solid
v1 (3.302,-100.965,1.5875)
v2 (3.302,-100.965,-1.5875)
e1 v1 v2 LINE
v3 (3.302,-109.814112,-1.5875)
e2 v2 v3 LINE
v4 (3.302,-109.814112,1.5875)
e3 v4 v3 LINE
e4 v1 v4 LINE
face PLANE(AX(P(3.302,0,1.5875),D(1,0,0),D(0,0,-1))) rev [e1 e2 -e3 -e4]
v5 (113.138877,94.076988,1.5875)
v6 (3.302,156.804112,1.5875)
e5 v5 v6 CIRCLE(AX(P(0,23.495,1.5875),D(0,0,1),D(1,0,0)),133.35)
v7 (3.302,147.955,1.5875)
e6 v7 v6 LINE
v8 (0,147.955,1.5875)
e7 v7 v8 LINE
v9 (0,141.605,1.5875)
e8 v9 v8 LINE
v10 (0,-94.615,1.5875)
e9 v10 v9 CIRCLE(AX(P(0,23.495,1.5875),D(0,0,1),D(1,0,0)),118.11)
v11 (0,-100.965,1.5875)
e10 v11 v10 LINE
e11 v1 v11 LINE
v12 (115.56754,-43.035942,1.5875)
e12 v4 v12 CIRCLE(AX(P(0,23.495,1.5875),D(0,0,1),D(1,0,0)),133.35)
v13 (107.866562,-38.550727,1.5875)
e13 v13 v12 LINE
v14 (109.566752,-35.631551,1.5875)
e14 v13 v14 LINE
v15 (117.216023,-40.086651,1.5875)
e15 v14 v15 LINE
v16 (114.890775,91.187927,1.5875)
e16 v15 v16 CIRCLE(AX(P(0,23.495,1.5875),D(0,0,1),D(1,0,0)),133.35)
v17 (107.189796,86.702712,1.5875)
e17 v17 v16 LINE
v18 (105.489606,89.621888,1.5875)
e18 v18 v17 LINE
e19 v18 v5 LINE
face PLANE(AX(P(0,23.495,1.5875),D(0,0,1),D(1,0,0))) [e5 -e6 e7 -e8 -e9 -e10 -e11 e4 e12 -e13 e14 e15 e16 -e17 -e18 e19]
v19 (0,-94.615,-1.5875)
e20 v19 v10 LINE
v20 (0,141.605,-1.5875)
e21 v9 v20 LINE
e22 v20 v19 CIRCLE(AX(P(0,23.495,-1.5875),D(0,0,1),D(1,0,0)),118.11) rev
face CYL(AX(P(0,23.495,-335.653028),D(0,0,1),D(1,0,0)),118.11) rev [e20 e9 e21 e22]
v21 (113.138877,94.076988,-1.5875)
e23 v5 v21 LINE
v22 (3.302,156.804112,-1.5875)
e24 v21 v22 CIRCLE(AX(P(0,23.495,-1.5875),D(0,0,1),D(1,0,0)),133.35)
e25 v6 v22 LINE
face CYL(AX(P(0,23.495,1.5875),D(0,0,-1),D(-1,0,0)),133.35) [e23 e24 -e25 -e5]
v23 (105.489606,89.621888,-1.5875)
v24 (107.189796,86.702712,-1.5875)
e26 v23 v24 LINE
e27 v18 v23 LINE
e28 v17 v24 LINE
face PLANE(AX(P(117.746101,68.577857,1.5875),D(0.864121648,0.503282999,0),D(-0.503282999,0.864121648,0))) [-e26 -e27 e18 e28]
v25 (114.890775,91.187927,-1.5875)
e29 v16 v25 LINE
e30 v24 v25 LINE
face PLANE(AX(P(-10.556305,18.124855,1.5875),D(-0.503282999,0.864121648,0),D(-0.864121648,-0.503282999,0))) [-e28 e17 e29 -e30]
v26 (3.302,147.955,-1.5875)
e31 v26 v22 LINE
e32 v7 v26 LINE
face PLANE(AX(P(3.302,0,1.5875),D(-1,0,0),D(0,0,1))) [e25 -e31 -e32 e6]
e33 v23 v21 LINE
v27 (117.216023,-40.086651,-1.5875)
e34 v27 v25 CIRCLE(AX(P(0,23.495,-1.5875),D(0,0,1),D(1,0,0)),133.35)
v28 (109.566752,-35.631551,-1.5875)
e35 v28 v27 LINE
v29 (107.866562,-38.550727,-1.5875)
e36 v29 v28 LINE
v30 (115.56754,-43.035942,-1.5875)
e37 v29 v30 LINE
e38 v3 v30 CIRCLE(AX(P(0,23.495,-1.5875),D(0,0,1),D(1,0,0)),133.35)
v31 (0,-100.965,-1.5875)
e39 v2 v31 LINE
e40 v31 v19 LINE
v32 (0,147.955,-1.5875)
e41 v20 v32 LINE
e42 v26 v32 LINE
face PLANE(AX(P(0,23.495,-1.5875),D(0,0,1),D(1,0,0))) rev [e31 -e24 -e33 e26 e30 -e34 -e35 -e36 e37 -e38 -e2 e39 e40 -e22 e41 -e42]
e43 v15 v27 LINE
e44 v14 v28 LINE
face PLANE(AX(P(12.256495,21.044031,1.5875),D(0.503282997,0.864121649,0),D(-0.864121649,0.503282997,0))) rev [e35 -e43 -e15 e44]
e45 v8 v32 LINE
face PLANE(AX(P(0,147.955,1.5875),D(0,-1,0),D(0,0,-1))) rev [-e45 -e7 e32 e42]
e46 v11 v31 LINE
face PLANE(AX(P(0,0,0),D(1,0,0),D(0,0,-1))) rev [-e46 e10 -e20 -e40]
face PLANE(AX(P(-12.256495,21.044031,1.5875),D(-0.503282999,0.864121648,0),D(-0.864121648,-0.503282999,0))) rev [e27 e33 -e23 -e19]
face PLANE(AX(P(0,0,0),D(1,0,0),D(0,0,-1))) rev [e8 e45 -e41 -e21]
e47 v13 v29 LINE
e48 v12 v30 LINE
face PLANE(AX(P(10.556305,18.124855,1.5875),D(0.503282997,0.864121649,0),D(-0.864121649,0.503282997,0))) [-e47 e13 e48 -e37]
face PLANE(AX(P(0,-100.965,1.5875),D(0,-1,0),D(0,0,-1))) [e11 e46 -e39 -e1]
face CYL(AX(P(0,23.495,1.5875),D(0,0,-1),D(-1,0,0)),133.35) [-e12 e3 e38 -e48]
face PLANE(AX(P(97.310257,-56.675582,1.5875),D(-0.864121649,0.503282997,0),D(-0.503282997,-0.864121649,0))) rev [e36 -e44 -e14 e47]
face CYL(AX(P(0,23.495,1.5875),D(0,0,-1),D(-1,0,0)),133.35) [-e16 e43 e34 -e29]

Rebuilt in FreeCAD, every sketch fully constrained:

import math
import FreeCAD as App
import Part
import Sketcher

V = App.Vector
Q = App.Units.Quantity


def edges_at(feature, points):
    """Names of the edges that pass closest to the given points."""
    edges = feature.Shape.Edges
    near = lambda p: min(range(len(edges)), key=lambda i: edges[i].distToShape(Part.Vertex(*p))[0])
    return sorted({f"Edge{near(p) + 1}" for p in points})


def add_polygon(sketch, points):
    """Adds a closed chain of lines whose ends are joined by coincident constraints."""
    first, n = sketch.GeometryCount, len(points)
    for a, b in zip(points, points[1:] + points[:1]):
        sketch.addGeometry(Part.LineSegment(App.Vector(*a, 0), App.Vector(*b, 0)), False)
    for i in range(n):
        sketch.addConstraint(Sketcher.Constraint("Coincident", first + i, 2, first + (i + 1) % n, 1))

doc = App.newDocument("Part")
body = doc.addObject("PartDesign::Body", "Body")

# Sketch on XY plane
sketch1 = body.newObject("Sketcher::SketchObject", "Sketch")
sketch1.AttachmentSupport = (doc.getObject("XY_Plane"), [""])
sketch1.MapMode = "FlatFace"
sketch1.addGeometry(Part.LineSegment(V(-120, -34, 0), V(-93, -61, 0)), False)
sketch1.addGeometry(Part.LineSegment(V(-93, -61, 0), V(-94, -71, 0)), False)
sketch1.addGeometry(Part.ArcOfCircle(Part.Circle(V(0, 23, 0), V(0, 0, 1), 133), math.radians(-135), math.radians(-115.67)), False)
sketch1.addGeometry(Part.ArcOfCircle(Part.Circle(V(0, 23, 0), V(0, 0, 1), 133), math.radians(-116), math.radians(206)), False)
sketch1.addConstraint(Sketcher.Constraint("Coincident", 0, 2, 1, 1))
sketch1.addConstraint(Sketcher.Constraint("Coincident", 1, 2, 2, 1))
sketch1.addConstraint(Sketcher.Constraint("Tangent", 2, 2, 3, 1))
sketch1.addConstraint(Sketcher.Constraint("Coincident", 3, 2, 0, 1))
sketch1.addConstraint(Sketcher.Constraint("Equal", 2, 3))
sketch1.addConstraint(Sketcher.Constraint("PointOnObject", 2, 3, -2))
sketch1.addConstraint(Sketcher.Constraint("Radius", 2, Q("5.25 in")))
sketch1.addConstraint(Sketcher.Constraint("Angle", 0, Q("-45 deg")))
sketch1.addConstraint(Sketcher.Constraint("Distance", 0, Q("1.5 in")))
sketch1.addConstraint(Sketcher.Constraint("DistanceY", -1, 1, 2, 3, Q("0.925 in")))
sketch1.addConstraint(Sketcher.Constraint("DistanceX", 3, 2, 2, 2, Q("2.4575 in")))
sketch1.addConstraint(Sketcher.Constraint("DistanceY", 2, 2, 3, 2, Q("2.4575 in")))
sketch1.addConstraint(Sketcher.Constraint("DistanceX", 1, 2, -1, 1, 94.292689))
pad1 = body.newObject("PartDesign::Pad", "Pad")
pad1.Profile = sketch1
pad1.Length = Q("0.125 in")
pad1.Midplane = True

# Sketch on XY plane
sketch2 = body.newObject("Sketcher::SketchObject", "Sketch001")
sketch2.AttachmentSupport = (doc.getObject("XY_Plane"), [""])
sketch2.MapMode = "FlatFace"
sketch2.AttachmentOffset = App.Placement(V(0, 0, 0.0625 * 25.4), App.Rotation())
sketch2.addGeometry(Part.LineSegment(V(-77, -56, 0), V(-78, -65, 0)), False)
sketch2.addGeometry(Part.ArcOfCircle(Part.Circle(V(0, 23, 0), V(0, 0, 1), 118), math.radians(-132), math.radians(204)), False)
sketch2.addGeometry(Part.LineSegment(V(-108, -25, 0), V(-77, -56, 0)), False)
sketch2.addConstraint(Sketcher.Constraint("Coincident", 0, 2, 1, 1))
sketch2.addConstraint(Sketcher.Constraint("Coincident", 1, 2, 2, 1))
sketch2.addConstraint(Sketcher.Constraint("Coincident", 2, 2, 0, 1))
sketch2.addConstraint(Sketcher.Constraint("PointOnObject", 1, 3, -2))
sketch2.addConstraint(Sketcher.Constraint("Radius", 1, Q("4.65 in")))
sketch2.addConstraint(Sketcher.Constraint("Angle", 2, Q("-45 deg")))
sketch2.addConstraint(Sketcher.Constraint("DistanceY", -1, 1, 1, 3, Q("0.925 in")))
sketch2.addConstraint(Sketcher.Constraint("DistanceX", 1, 2, -1, 1, 107.5191))
sketch2.addConstraint(Sketcher.Constraint("DistanceX", 2, 2, -1, 1, 77.304798))
sketch2.addConstraint(Sketcher.Constraint("Distance", 0, 9.36481))
pocket1 = body.newObject("PartDesign::Pocket", "Pocket")
pocket1.Profile = sketch2
pocket1.Length = Q("0.125 in")
doc.recompute()

fillet = body.newObject("PartDesign::Fillet", "Fillet")
fillet.Base = (pocket1, edges_at(pocket1, [
    (-77.305, -55.603, 0),
    (-107.519, -25.389, 0),
    (-78.32, -64.913, 0),
    (-93.247, -61.213, 0),
    (-120.188, -34.272, 0),
    (-94.293, -70.798, 0),
]))
fillet.Radius = Q("0.35 in")

# Sketch on YZ plane
sketch3 = body.newObject("Sketcher::SketchObject", "Sketch002")
sketch3.AttachmentSupport = (doc.getObject("YZ_Plane"), [""])
sketch3.MapMode = "FlatFace"
add_polygon(sketch3, [(228, 107), (-195, 107), (-195, -127), (228, -127)])  # lines 0-3
sketch3.addConstraint(Sketcher.Constraint("Horizontal", 0))
sketch3.addConstraint(Sketcher.Constraint("Vertical", 1))
sketch3.addConstraint(Sketcher.Constraint("Horizontal", 2))
sketch3.addConstraint(Sketcher.Constraint("Vertical", 3))
sketch3.addConstraint(Sketcher.Constraint("DistanceX", 0, 2, 0, 1, 422.563019))
sketch3.addConstraint(Sketcher.Constraint("DistanceY", 1, 2, 1, 1, 234.443386))
sketch3.addConstraint(Sketcher.Constraint("DistanceY", 1, 2, -1, 1, 127.390322))
sketch3.addConstraint(Sketcher.Constraint("DistanceX", -1, 1, 2, 2, 227.714962))
pocket2 = body.newObject("PartDesign::Pocket", "Pocket001")
pocket2.Profile = sketch3
pocket2.Type = "ThroughAll"

# Sketch on XY plane
sketch4 = body.newObject("Sketcher::SketchObject", "Sketch003")
sketch4.AttachmentSupport = (doc.getObject("XY_Plane"), [""])
sketch4.MapMode = "FlatFace"
sketch4.AttachmentOffset = App.Placement(V(0, 0, -0.0625 * 25.4), App.Rotation())
sketch4.addGeometry(Part.LineSegment(V(3.302, 156.804112, 0), V(3.302, 147.955, 0)), False)
sketch4.addGeometry(Part.LineSegment(V(3.302, 147.955, 0), V(0, 147.955, 0)), False)
sketch4.addGeometry(Part.LineSegment(V(0, 147.955, 0), V(0, 156.845, 0)), False)
sketch4.addGeometry(Part.ArcOfCircle(Part.Circle(V(0, 23.495, 0), V(0, 0, 1), 133.35), math.radians(88.581102), math.radians(90)), False)
sketch4.addGeometry(Part.LineSegment(V(105.489606, 89.621888, 0), V(113.138877, 94.076988, 0)), False)
sketch4.addGeometry(Part.ArcOfCircle(Part.Circle(V(0.000008, 23.495005, 0), V(0, 0, 1), 133.34999), math.radians(30.506327), math.radians(31.958086)), False)
sketch4.addGeometry(Part.LineSegment(V(114.890775, 91.187927, 0), V(107.189796, 86.702712, 0)), False)
sketch4.addGeometry(Part.LineSegment(V(107.189796, 86.702712, 0), V(105.489606, 89.621888, 0)), False)
sketch4.addGeometry(Part.LineSegment(V(109.566752, -35.631551, 0), V(117.216023, -40.086651, 0)), False)
sketch4.addGeometry(Part.ArcOfCircle(Part.Circle(V(0.000004, 23.494998, 0), V(0, 0, 1), 133.349996), math.radians(-29.928554), math.radians(-28.476794)), False)
sketch4.addGeometry(Part.LineSegment(V(115.56754, -43.035942, 0), V(107.866562, -38.550727, 0)), False)
sketch4.addGeometry(Part.LineSegment(V(107.866562, -38.550727, 0), V(109.566752, -35.631551, 0)), False)
sketch4.addGeometry(Part.LineSegment(V(3.302, -100.965, 0), V(3.302, -109.814112, 0)), False)
sketch4.addGeometry(Part.ArcOfCircle(Part.Circle(V(0, 23.495, 0), V(0, 0, 1), 133.35), math.radians(-90), math.radians(-88.581102)), False)
sketch4.addGeometry(Part.LineSegment(V(0, -109.855, 0), V(0, -100.965, 0)), False)
sketch4.addGeometry(Part.LineSegment(V(0, -100.965, 0), V(3.302, -100.965, 0)), False)
sketch4.addConstraint(Sketcher.Constraint("Coincident", 0, 2, 1, 1))
sketch4.addConstraint(Sketcher.Constraint("Coincident", 1, 2, 2, 1))
sketch4.addConstraint(Sketcher.Constraint("Coincident", 2, 2, 3, 2))
sketch4.addConstraint(Sketcher.Constraint("Coincident", 3, 1, 0, 1))
sketch4.addConstraint(Sketcher.Constraint("Coincident", 4, 2, 5, 2))
sketch4.addConstraint(Sketcher.Constraint("Coincident", 5, 1, 6, 1))
sketch4.addConstraint(Sketcher.Constraint("Coincident", 6, 2, 7, 1))
sketch4.addConstraint(Sketcher.Constraint("Coincident", 7, 2, 4, 1))
sketch4.addConstraint(Sketcher.Constraint("Coincident", 8, 2, 9, 2))
sketch4.addConstraint(Sketcher.Constraint("Coincident", 9, 1, 10, 1))
sketch4.addConstraint(Sketcher.Constraint("Coincident", 10, 2, 11, 1))
sketch4.addConstraint(Sketcher.Constraint("Coincident", 11, 2, 8, 1))
sketch4.addConstraint(Sketcher.Constraint("Coincident", 12, 2, 13, 2))
sketch4.addConstraint(Sketcher.Constraint("Coincident", 13, 1, 14, 1))
sketch4.addConstraint(Sketcher.Constraint("Coincident", 14, 2, 15, 1))
sketch4.addConstraint(Sketcher.Constraint("Coincident", 15, 2, 12, 1))
sketch4.addConstraint(Sketcher.Constraint("Vertical", 0))
sketch4.addConstraint(Sketcher.Constraint("Horizontal", 1))
sketch4.addConstraint(Sketcher.Constraint("Vertical", 2))
sketch4.addConstraint(Sketcher.Constraint("Vertical", 12))
sketch4.addConstraint(Sketcher.Constraint("Vertical", 14))
sketch4.addConstraint(Sketcher.Constraint("Horizontal", 15))
sketch4.addConstraint(Sketcher.Constraint("Coincident", 9, 3, 3, 3))
sketch4.addConstraint(Sketcher.Constraint("Coincident", 13, 3, 3, 3))
sketch4.addConstraint(Sketcher.Constraint("PointOnObject", 3, 3, -2))
sketch4.addConstraint(Sketcher.Constraint("PointOnObject", 1, 2, -2))
sketch4.addConstraint(Sketcher.Constraint("PointOnObject", 13, 1, -2))
sketch4.addConstraint(Sketcher.Constraint("Radius", 3, Q("5.25 in")))
sketch4.addConstraint(Sketcher.Constraint("Radius", 9, Q("5.2499998 in")))
sketch4.addConstraint(Sketcher.Constraint("Radius", 13, Q("5.25 in")))
sketch4.addConstraint(Sketcher.Constraint("DistanceX", 1, 2, 1, 1, Q("0.13 in")))
sketch4.addConstraint(Sketcher.Constraint("DistanceX", 15, 1, 15, 2, Q("0.13 in")))
sketch4.addConstraint(Sketcher.Constraint("DistanceY", 2, 1, 2, 2, Q("0.35 in")))
sketch4.addConstraint(Sketcher.Constraint("DistanceY", 14, 1, 14, 2, Q("0.35 in")))
sketch4.addConstraint(Sketcher.Constraint("Distance", 7, Q("0.133 in")))
sketch4.addConstraint(Sketcher.Constraint("Distance", 11, Q("0.133 in")))
sketch4.addConstraint(Sketcher.Constraint("DistanceY", -1, 1, 3, 3, Q("0.925 in")))
sketch4.addConstraint(Sketcher.Constraint("Radius", 5, 133.34999))
sketch4.addConstraint(Sketcher.Constraint("DistanceY", 7, 2, 4, 2, 4.4551))
sketch4.addConstraint(Sketcher.Constraint("DistanceY", 8, 2, 11, 2, 4.4551))
sketch4.addConstraint(Sketcher.Constraint("DistanceY", -1, 1, 7, 2, 89.621888))
sketch4.addConstraint(Sketcher.Constraint("DistanceY", 8, 2, -1, 1, 40.086651))
sketch4.addConstraint(Sketcher.Constraint("DistanceX", -1, 1, 9, 1, 115.56754))
sketch4.addConstraint(Sketcher.Constraint("DistanceX", -1, 1, 10, 2, 107.866562))
sketch4.addConstraint(Sketcher.Constraint("DistanceX", 5, 3, 0, 2, 3.301992))
sketch4.addConstraint(Sketcher.Constraint("DistanceX", 5, 3, 4, 2, 113.138868))
sketch4.addConstraint(Sketcher.Constraint("DistanceY", 5, 1, 4, 2, 2.889061))
sketch4.addConstraint(Sketcher.Constraint("DistanceX", 6, 2, 5, 1, 7.700978))
sketch4.addConstraint(Sketcher.Constraint("DistanceX", 7, 2, 6, 2, 1.700191))
sketch4.addConstraint(Sketcher.Constraint("DistanceX", 10, 2, 11, 2, 1.700191))
pocket3 = body.newObject("PartDesign::Pocket", "Pocket002")
pocket3.Profile = sketch4
pocket3.Type = "ThroughAll"
pocket3.Reversed = True

doc.recompute()
